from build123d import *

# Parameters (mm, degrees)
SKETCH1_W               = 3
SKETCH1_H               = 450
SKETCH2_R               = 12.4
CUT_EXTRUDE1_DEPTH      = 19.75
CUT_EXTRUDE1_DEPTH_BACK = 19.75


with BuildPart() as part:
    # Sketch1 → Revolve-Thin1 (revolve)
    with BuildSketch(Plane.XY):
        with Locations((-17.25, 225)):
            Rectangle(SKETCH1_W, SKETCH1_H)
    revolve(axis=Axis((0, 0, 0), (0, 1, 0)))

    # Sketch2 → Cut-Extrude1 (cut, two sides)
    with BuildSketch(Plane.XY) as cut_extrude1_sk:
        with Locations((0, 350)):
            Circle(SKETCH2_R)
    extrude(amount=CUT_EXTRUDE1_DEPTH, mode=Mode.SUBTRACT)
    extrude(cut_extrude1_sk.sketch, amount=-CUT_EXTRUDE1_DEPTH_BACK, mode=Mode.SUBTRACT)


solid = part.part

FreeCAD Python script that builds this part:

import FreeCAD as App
import Part
import Sketcher

V = App.Vector
Q = App.Units.Quantity


def add_polygon(sketch, points):
    """Adds a closed chain of lines whose ends are joined by coincident constraints."""
    first, n = sketch.GeometryCount, len(points)
    for a, b in zip(points, points[1:] + points[:1]):
        sketch.addGeometry(Part.LineSegment(App.Vector(*a, 0), App.Vector(*b, 0)), False)
    for i in range(n):
        sketch.addConstraint(Sketcher.Constraint("Coincident", first + i, 2, first + (i + 1) % n, 1))

doc = App.newDocument("Part")
body = doc.addObject("PartDesign::Body", "Body")

sketch1 = body.newObject("Sketcher::SketchObject", "Sketch")
sketch1.AttachmentSupport = (doc.getObject("XY_Plane"), [""])
sketch1.MapMode = "FlatFace"
add_polygon(sketch1, [(-18.75, 450), (-18.75, 0), (-15.75, 0), (-15.75, 450)])
sketch1.addConstraint(Sketcher.Constraint("Vertical", 0))
sketch1.addConstraint(Sketcher.Constraint("Horizontal", 1))
sketch1.addConstraint(Sketcher.Constraint("Vertical", 2))
sketch1.addConstraint(Sketcher.Constraint("Horizontal", 3))
sketch1.addConstraint(Sketcher.Constraint("PointOnObject", 0, 2, -1))
sketch1.addConstraint(Sketcher.Constraint("DistanceX", 1, 1, 1, 2, Q("3 mm")))
sketch1.addConstraint(Sketcher.Constraint("DistanceY", 0, 2, 0, 1, Q("450 mm")))
sketch1.addConstraint(Sketcher.Constraint("DistanceX", 0, 2, -1, 1, Q("18.75 mm")))
revolution = body.newObject("PartDesign::Revolution", "Revolution")
revolution.Profile = sketch1
revolution.ReferenceAxis = (sketch1, ["V_Axis"])
revolution.Angle = 360

sketch2 = body.newObject("Sketcher::SketchObject", "Sketch001")
sketch2.AttachmentSupport = (doc.getObject("XY_Plane"), [""])
sketch2.MapMode = "FlatFace"
sketch2.addGeometry(Part.Circle(V(0, 350, 0), V(0, 0, 1), 12.4), False)
sketch2.addConstraint(Sketcher.Constraint("PointOnObject", 0, 3, -2))
sketch2.addConstraint(Sketcher.Constraint("Diameter", 0, Q("24.8 mm")))
sketch2.addConstraint(Sketcher.Constraint("DistanceY", -1, 1, 0, 3, Q("350 mm")))
pocket1 = body.newObject("PartDesign::Pocket", "Pocket")
pocket1.Profile = sketch2
pocket1.Type = "ThroughAll"
pocket1.Midplane = True

doc.recompute()
